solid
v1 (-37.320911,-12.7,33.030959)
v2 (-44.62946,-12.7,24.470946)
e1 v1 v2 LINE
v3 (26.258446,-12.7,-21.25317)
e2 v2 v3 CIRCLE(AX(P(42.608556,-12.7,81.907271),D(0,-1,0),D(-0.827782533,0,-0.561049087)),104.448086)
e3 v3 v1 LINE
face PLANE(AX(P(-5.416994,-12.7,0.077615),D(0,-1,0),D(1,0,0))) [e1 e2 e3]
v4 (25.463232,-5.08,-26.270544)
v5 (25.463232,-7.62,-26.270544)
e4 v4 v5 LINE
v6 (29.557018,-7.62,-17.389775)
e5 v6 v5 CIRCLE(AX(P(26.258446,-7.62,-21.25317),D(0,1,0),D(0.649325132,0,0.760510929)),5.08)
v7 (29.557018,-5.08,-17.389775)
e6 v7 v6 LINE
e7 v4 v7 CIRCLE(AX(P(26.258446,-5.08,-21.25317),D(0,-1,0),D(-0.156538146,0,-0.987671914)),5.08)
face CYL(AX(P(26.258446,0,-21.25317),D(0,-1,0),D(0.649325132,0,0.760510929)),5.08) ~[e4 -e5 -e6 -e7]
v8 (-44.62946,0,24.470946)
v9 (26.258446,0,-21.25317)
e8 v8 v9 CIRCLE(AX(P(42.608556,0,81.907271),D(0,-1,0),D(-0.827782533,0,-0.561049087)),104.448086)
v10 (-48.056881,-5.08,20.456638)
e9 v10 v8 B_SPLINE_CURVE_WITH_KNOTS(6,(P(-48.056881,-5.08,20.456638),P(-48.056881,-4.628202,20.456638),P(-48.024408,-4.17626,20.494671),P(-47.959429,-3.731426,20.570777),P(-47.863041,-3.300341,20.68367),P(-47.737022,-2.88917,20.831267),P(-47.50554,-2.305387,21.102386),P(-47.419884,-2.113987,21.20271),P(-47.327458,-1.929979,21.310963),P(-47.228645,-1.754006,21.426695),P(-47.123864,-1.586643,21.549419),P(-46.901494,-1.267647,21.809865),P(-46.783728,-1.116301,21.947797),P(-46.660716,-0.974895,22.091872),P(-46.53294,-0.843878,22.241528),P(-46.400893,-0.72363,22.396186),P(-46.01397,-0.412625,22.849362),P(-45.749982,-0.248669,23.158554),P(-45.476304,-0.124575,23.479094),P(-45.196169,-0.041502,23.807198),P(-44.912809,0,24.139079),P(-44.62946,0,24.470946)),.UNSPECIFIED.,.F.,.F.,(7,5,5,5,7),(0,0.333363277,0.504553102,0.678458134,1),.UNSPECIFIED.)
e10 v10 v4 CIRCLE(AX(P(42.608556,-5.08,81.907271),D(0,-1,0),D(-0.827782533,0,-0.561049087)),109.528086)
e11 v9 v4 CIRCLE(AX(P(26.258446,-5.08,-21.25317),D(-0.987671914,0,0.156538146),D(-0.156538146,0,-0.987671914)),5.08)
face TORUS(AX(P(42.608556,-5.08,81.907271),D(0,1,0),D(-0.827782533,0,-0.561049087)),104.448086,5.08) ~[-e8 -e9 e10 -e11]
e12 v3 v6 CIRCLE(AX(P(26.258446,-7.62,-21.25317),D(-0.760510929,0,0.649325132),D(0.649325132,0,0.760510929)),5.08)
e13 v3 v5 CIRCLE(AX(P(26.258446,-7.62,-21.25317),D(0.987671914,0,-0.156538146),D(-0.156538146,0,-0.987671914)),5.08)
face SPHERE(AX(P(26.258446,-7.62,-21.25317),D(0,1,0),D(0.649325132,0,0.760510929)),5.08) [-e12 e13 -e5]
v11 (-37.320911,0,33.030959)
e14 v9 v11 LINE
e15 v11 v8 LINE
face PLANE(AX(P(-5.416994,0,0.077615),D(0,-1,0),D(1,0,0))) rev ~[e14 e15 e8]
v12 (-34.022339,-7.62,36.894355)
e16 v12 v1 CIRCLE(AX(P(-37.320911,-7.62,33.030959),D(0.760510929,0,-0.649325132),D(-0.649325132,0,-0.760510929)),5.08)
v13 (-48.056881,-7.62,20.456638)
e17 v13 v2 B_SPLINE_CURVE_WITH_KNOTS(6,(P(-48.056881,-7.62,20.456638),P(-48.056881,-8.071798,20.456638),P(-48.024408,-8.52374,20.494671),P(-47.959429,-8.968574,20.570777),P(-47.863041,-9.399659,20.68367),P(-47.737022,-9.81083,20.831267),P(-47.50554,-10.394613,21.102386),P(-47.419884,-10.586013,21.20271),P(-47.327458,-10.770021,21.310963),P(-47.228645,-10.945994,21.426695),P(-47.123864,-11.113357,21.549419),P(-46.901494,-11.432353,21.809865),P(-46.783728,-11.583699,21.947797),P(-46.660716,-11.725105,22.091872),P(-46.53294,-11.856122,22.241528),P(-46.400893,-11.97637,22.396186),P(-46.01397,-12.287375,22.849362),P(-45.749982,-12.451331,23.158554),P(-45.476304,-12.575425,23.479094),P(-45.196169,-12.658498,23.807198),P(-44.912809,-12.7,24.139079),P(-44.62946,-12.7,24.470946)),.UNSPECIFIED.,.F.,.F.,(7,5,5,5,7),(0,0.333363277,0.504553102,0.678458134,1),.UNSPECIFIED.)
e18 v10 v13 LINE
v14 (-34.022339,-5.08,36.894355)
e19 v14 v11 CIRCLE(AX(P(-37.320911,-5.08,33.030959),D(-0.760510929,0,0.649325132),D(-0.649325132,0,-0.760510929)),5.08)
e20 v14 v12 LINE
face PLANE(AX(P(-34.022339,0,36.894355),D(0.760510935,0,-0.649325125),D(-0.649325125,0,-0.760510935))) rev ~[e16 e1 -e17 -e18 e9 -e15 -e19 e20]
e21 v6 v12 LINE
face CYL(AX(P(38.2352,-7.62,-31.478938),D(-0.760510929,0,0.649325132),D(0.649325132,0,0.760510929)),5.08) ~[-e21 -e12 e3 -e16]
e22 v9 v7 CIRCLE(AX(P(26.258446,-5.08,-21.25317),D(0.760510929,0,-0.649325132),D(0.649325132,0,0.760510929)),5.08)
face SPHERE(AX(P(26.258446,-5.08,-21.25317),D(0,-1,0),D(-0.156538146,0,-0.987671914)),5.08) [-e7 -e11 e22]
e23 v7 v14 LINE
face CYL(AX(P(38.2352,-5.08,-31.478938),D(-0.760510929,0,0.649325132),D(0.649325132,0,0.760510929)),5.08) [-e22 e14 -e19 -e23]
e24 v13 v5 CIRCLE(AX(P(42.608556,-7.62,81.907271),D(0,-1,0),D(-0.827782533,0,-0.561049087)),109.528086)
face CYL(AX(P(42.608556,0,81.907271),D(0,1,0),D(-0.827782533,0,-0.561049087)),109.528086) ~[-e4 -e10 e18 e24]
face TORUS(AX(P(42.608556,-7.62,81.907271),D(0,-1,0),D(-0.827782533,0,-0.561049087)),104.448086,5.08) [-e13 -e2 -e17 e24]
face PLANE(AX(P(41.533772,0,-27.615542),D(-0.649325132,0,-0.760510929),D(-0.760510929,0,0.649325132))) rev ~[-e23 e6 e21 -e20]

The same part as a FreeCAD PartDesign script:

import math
import FreeCAD as App
import Part
import Sketcher
Q = App.Units.Quantity


def edges_at(feature, points):
    """Names of the edges that pass closest to the given points."""
    edges = feature.Shape.Edges
    near = lambda p: min(range(len(edges)), key=lambda i: edges[i].distToShape(Part.Vertex(*p))[0])
    return sorted({f"Edge{near(p) + 1}" for p in points})

doc = App.newDocument("Part")
body = doc.addObject("PartDesign::Body", "Body")

sketch1 = body.newObject("Sketcher::SketchObject", "Sketch")
sketch1.AttachmentSupport = (doc.getObject("XZ_Plane"), [""])
sketch1.MapMode = "FlatFace"
sketch1.addGeometry(Part.LineSegment(App.Vector(42, -28, 0), App.Vector(-34, 37, 0)), False)
sketch1.addGeometry(Part.LineSegment(App.Vector(-34, 37, 0), App.Vector(-48, 20, 0)), False)
sketch1.addGeometry(Part.ArcOfCircle(Part.Circle(App.Vector(43, 82, 0), App.Vector(0, 0, 1), 110), math.radians(-146), math.radians(-91)), False)
sketch1.addConstraint(Sketcher.Constraint("Coincident", 0, 2, 1, 1))
sketch1.addConstraint(Sketcher.Constraint("Coincident", 1, 2, 2, 1))
sketch1.addConstraint(Sketcher.Constraint("Coincident", 2, 2, 0, 1))
sketch1.addConstraint(Sketcher.Constraint("Perpendicular", 0, 1))
sketch1.addConstraint(Sketcher.Constraint("Radius", 2, Q("109.528086 mm")))
sketch1.addConstraint(Sketcher.Constraint("DistanceY", -1, 1, 2, 3, Q("81.907271 mm")))
sketch1.addConstraint(Sketcher.Constraint("DistanceX", 0, 2, -1, 1, Q("34.022339 mm")))
sketch1.addConstraint(Sketcher.Constraint("DistanceX", 1, 2, -1, 1, Q("48.056881 mm")))
sketch1.addConstraint(Sketcher.Constraint("DistanceY", -1, 1, 1, 2, Q("20.456638 mm")))
sketch1.addConstraint(Sketcher.Constraint("DistanceX", -1, 1, 2, 2, Q("41.533772 mm")))
pad1 = body.newObject("PartDesign::Pad", "Pad")
pad1.Profile = sketch1
pad1.Length = Q("0.5 in")
doc.recompute()

fillet = body.newObject("PartDesign::Fillet", "Fillet")
fillet.Base = (pad1, edges_at(pad1, [
    (3.756, -12.7, 4.639),
    (-9.178, -12.7, -14.605),
    (-9.178, 0, -14.605),
    (3.756, 0, 4.639),
    (41.534, -6.35, -27.616),
]))
fillet.Radius = Q("0.2 in")

doc.recompute()
